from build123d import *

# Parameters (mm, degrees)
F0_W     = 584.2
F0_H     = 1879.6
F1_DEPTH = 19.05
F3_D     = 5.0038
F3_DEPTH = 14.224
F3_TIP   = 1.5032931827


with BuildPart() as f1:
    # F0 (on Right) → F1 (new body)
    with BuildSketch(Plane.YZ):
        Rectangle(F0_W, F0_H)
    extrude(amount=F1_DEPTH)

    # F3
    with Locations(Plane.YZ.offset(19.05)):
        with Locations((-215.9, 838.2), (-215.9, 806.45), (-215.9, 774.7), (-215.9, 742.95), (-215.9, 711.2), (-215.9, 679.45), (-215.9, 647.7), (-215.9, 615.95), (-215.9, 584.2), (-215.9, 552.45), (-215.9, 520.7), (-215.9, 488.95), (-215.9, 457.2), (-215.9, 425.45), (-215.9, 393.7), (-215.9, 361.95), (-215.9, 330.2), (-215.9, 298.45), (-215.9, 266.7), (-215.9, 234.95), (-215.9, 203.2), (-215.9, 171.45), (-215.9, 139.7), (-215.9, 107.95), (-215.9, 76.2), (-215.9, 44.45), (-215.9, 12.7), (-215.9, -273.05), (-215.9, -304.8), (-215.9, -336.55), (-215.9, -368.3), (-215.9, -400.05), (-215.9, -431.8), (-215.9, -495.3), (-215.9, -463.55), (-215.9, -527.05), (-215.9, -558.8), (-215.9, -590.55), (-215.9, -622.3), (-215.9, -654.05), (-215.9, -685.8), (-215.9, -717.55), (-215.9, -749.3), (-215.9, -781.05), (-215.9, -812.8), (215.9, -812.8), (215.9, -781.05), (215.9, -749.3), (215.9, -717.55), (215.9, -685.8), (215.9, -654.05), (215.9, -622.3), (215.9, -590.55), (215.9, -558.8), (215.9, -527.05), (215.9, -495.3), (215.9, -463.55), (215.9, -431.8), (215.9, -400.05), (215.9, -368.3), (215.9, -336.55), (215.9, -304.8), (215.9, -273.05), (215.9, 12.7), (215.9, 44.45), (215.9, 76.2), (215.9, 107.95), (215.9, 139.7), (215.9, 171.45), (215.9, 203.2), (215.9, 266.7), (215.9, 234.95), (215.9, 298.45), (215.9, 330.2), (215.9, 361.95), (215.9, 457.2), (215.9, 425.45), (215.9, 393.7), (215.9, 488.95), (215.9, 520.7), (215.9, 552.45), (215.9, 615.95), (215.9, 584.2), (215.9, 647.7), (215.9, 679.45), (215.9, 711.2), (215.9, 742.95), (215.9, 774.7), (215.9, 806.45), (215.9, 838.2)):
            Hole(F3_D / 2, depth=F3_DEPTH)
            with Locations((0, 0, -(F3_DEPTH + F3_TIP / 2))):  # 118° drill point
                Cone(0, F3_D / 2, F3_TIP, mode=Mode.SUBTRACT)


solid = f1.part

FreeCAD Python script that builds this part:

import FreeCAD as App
import Part
import Sketcher
from FreeCAD import Vector
Q = App.Units.Quantity

doc = App.newDocument("Part")
params = doc.addObject("Spreadsheet::Sheet", "Params")
for row, (alias, value) in enumerate([
    ("sketch1_width", "23 in"),
    ("sketch1_height", "74 in"),
    ("pad1_length", "0.75 in"),
    ("sketch2_diameter", "0.197 in"),
    ("hole_diameter", "0.197 in"),
    ("hole_depth", "0.56 in"),
], start=1):
    params.set(f"A{row}", alias)
    params.set(f"B{row}", "=" + value)
    params.setAlias(f"B{row}", alias)

body = doc.addObject("PartDesign::Body", "Body")

sketch1 = body.newObject("Sketcher::SketchObject", "Sketch")
sketch1.AttachmentSupport = (doc.getObject("YZ_Plane"), [""])
sketch1.MapMode = "FlatFace"
sketch1.addGeometry(Part.LineSegment(Vector(-292, 940, 0), Vector(-292, -940, 0)), False)
sketch1.addGeometry(Part.LineSegment(Vector(-292, -940, 0), Vector(292, -940, 0)), False)
sketch1.addGeometry(Part.LineSegment(Vector(292, -940, 0), Vector(292, 940, 0)), False)
sketch1.addGeometry(Part.LineSegment(Vector(292, 940, 0), Vector(-292, 940, 0)), False)
sketch1.addConstraint(Sketcher.Constraint("Coincident", 0, 2, 1, 1))
sketch1.addConstraint(Sketcher.Constraint("Coincident", 1, 2, 2, 1))
sketch1.addConstraint(Sketcher.Constraint("Coincident", 2, 2, 3, 1))
sketch1.addConstraint(Sketcher.Constraint("Coincident", 3, 2, 0, 1))
sketch1.addConstraint(Sketcher.Constraint("Vertical", 0))
sketch1.addConstraint(Sketcher.Constraint("Horizontal", 1))
sketch1.addConstraint(Sketcher.Constraint("Vertical", 2))
sketch1.addConstraint(Sketcher.Constraint("Horizontal", 3))
sketch1.addConstraint(Sketcher.Constraint("Symmetric", 0, 2, 2, 2, -1, 1))
sketch1.addConstraint(Sketcher.Constraint("DistanceX", 1, 1, 1, 2, Q("23 in")))
sketch1.addConstraint(Sketcher.Constraint("DistanceY", 0, 2, 0, 1, Q("74 in")))
sketch1.setExpression("Constraints[9]", "Params.sketch1_width")
sketch1.setExpression("Constraints[10]", "Params.sketch1_height")
pad1 = body.newObject("PartDesign::Pad", "Pad")
pad1.Profile = sketch1
pad1.setExpression("Length", "Params.pad1_length")

sketch2 = body.newObject("Sketcher::SketchObject", "Sketch001")
sketch2.AttachmentSupport = (doc.getObject("YZ_Plane"), [""])
sketch2.MapMode = "FlatFace"
sketch2.AttachmentOffset = App.Placement(Vector(0, 0, 0.75 * 25.4), App.Rotation())
sketch2.addGeometry(Part.Circle(Vector(-215.9, 838.2, 0), Vector(0, 0, 1), 2.5), False)
sketch2.addGeometry(Part.Circle(Vector(-215.9, 806.5, 0), Vector(0, 0, 1), 2.5), False)
sketch2.addGeometry(Part.Circle(Vector(-215.9, 774.7, 0), Vector(0, 0, 1), 2.5), False)
sketch2.addGeometry(Part.Circle(Vector(-215.9, 743, 0), Vector(0, 0, 1), 2.5), False)
sketch2.addGeometry(Part.Circle(Vector(-215.9, 711.2, 0), Vector(0, 0, 1), 2.5), False)
sketch2.addGeometry(Part.Circle(Vector(-215.9, 679.5, 0), Vector(0, 0, 1), 2.5), False)
sketch2.addGeometry(Part.Circle(Vector(-215.9, 647.7, 0), Vector(0, 0, 1), 2.5), False)
sketch2.addGeometry(Part.Circle(Vector(-215.9, 616, 0), Vector(0, 0, 1), 2.5), False)
sketch2.addGeometry(Part.Circle(Vector(-215.9, 584.2, 0), Vector(0, 0, 1), 2.5), False)
sketch2.addGeometry(Part.Circle(Vector(-215.9, 552.5, 0), Vector(0, 0, 1), 2.5), False)
sketch2.addGeometry(Part.Circle(Vector(-215.9, 520.7, 0), Vector(0, 0, 1), 2.5), False)
sketch2.addGeometry(Part.Circle(Vector(-215.9, 488.9, 0), Vector(0, 0, 1), 2.5), False)
sketch2.addGeometry(Part.Circle(Vector(-215.9, 457.2, 0), Vector(0, 0, 1), 2.5), False)
sketch2.addGeometry(Part.Circle(Vector(-215.9, 425.4, 0), Vector(0, 0, 1), 2.5), False)
sketch2.addGeometry(Part.Circle(Vector(-215.9, 393.7, 0), Vector(0, 0, 1), 2.5), False)
sketch2.addGeometry(Part.Circle(Vector(-215.9, 361.9, 0), Vector(0, 0, 1), 2.5), False)
sketch2.addGeometry(Part.Circle(Vector(-215.9, 330.2, 0), Vector(0, 0, 1), 2.5), False)
sketch2.addGeometry(Part.Circle(Vector(-215.9, 298.4, 0), Vector(0, 0, 1), 2.5), False)
sketch2.addGeometry(Part.Circle(Vector(-215.9, 266.7, 0), Vector(0, 0, 1), 2.5), False)
sketch2.addGeometry(Part.Circle(Vector(-215.9, 234.9, 0), Vector(0, 0, 1), 2.5), False)
sketch2.addGeometry(Part.Circle(Vector(-215.9, 203.2, 0), Vector(0, 0, 1), 2.5), False)
sketch2.addGeometry(Part.Circle(Vector(-215.9, 171.4, 0), Vector(0, 0, 1), 2.5), False)
sketch2.addGeometry(Part.Circle(Vector(-215.9, 139.7, 0), Vector(0, 0, 1), 2.5), False)
sketch2.addGeometry(Part.Circle(Vector(-215.9, 108, 0), Vector(0, 0, 1), 2.5), False)
sketch2.addGeometry(Part.Circle(Vector(-215.9, 76.2, 0), Vector(0, 0, 1), 2.5), False)
sketch2.addGeometry(Part.Circle(Vector(-215.9, 44.5, 0), Vector(0, 0, 1), 2.5), False)
sketch2.addGeometry(Part.Circle(Vector(-215.9, 12.7, 0), Vector(0, 0, 1), 2.5), False)
sketch2.addGeometry(Part.Circle(Vector(-215.9, -273.1, 0), Vector(0, 0, 1), 2.5), False)
sketch2.addGeometry(Part.Circle(Vector(-215.9, -304.8, 0), Vector(0, 0, 1), 2.5), False)
sketch2.addGeometry(Part.Circle(Vector(-215.9, -336.6, 0), Vector(0, 0, 1), 2.5), False)
sketch2.addGeometry(Part.Circle(Vector(-215.9, -368.3, 0), Vector(0, 0, 1), 2.5), False)
sketch2.addGeometry(Part.Circle(Vector(-215.9, -400.1, 0), Vector(0, 0, 1), 2.5), False)
sketch2.addGeometry(Part.Circle(Vector(-215.9, -431.8, 0), Vector(0, 0, 1), 2.5), False)
sketch2.addGeometry(Part.Circle(Vector(-215.9, -495.3, 0), Vector(0, 0, 1), 2.5), False)
sketch2.addGeometry(Part.Circle(Vector(-215.9, -463.6, 0), Vector(0, 0, 1), 2.5), False)
sketch2.addGeometry(Part.Circle(Vector(-215.9, -527, 0), Vector(0, 0, 1), 2.5), False)
sketch2.addGeometry(Part.Circle(Vector(-215.9, -558.8, 0), Vector(0, 0, 1), 2.5), False)
sketch2.addGeometry(Part.Circle(Vector(-215.9, -590.5, 0), Vector(0, 0, 1), 2.5), False)
sketch2.addGeometry(Part.Circle(Vector(-215.9, -622.3, 0), Vector(0, 0, 1), 2.5), False)
sketch2.addGeometry(Part.Circle(Vector(-215.9, -654, 0), Vector(0, 0, 1), 2.5), False)
sketch2.addGeometry(Part.Circle(Vector(-215.9, -685.8, 0), Vector(0, 0, 1), 2.5), False)
sketch2.addGeometry(Part.Circle(Vector(-215.9, -717.5, 0), Vector(0, 0, 1), 2.5), False)
sketch2.addGeometry(Part.Circle(Vector(-215.9, -749.3, 0), Vector(0, 0, 1), 2.5), False)
sketch2.addGeometry(Part.Circle(Vector(-215.9, -781, 0), Vector(0, 0, 1), 2.5), False)
sketch2.addGeometry(Part.Circle(Vector(-215.9, -812.8, 0), Vector(0, 0, 1), 2.5), False)
sketch2.addGeometry(Part.Circle(Vector(215.9, -812.8, 0), Vector(0, 0, 1), 2.5), False)
sketch2.addGeometry(Part.Circle(Vector(215.9, -781, 0), Vector(0, 0, 1), 2.5), False)
sketch2.addGeometry(Part.Circle(Vector(215.9, -749.3, 0), Vector(0, 0, 1), 2.5), False)
sketch2.addGeometry(Part.Circle(Vector(215.9, -717.5, 0), Vector(0, 0, 1), 2.5), False)
sketch2.addGeometry(Part.Circle(Vector(215.9, -685.8, 0), Vector(0, 0, 1), 2.5), False)
sketch2.addGeometry(Part.Circle(Vector(215.9, -654, 0), Vector(0, 0, 1), 2.5), False)
sketch2.addGeometry(Part.Circle(Vector(215.9, -622.3, 0), Vector(0, 0, 1), 2.5), False)
sketch2.addGeometry(Part.Circle(Vector(215.9, -590.5, 0), Vector(0, 0, 1), 2.5), False)
sketch2.addGeometry(Part.Circle(Vector(215.9, -558.8, 0), Vector(0, 0, 1), 2.5), False)
sketch2.addGeometry(Part.Circle(Vector(215.9, -527, 0), Vector(0, 0, 1), 2.5), False)
sketch2.addGeometry(Part.Circle(Vector(215.9, -495.3, 0), Vector(0, 0, 1), 2.5), False)
sketch2.addGeometry(Part.Circle(Vector(215.9, -463.6, 0), Vector(0, 0, 1), 2.5), False)
sketch2.addGeometry(Part.Circle(Vector(215.9, -431.8, 0), Vector(0, 0, 1), 2.5), False)
sketch2.addGeometry(Part.Circle(Vector(215.9, -400.1, 0), Vector(0, 0, 1), 2.5), False)
sketch2.addGeometry(Part.Circle(Vector(215.9, -368.3, 0), Vector(0, 0, 1), 2.5), False)
sketch2.addGeometry(Part.Circle(Vector(215.9, -336.6, 0), Vector(0, 0, 1), 2.5), False)
sketch2.addGeometry(Part.Circle(Vector(215.9, -304.8, 0), Vector(0, 0, 1), 2.5), False)
sketch2.addGeometry(Part.Circle(Vector(215.9, -273.1, 0), Vector(0, 0, 1), 2.5), False)
sketch2.addGeometry(Part.Circle(Vector(215.9, 12.7, 0), Vector(0, 0, 1), 2.5), False)
sketch2.addGeometry(Part.Circle(Vector(215.9, 44.5, 0), Vector(0, 0, 1), 2.5), False)
sketch2.addGeometry(Part.Circle(Vector(215.9, 76.2, 0), Vector(0, 0, 1), 2.5), False)
sketch2.addGeometry(Part.Circle(Vector(215.9, 108, 0), Vector(0, 0, 1), 2.5), False)
sketch2.addGeometry(Part.Circle(Vector(215.9, 139.7, 0), Vector(0, 0, 1), 2.5), False)
sketch2.addGeometry(Part.Circle(Vector(215.9, 171.4, 0), Vector(0, 0, 1), 2.5), False)
sketch2.addGeometry(Part.Circle(Vector(215.9, 203.2, 0), Vector(0, 0, 1), 2.5), False)
sketch2.addGeometry(Part.Circle(Vector(215.9, 266.7, 0), Vector(0, 0, 1), 2.5), False)
sketch2.addGeometry(Part.Circle(Vector(215.9, 234.9, 0), Vector(0, 0, 1), 2.5), False)
sketch2.addGeometry(Part.Circle(Vector(215.9, 298.4, 0), Vector(0, 0, 1), 2.5), False)
sketch2.addGeometry(Part.Circle(Vector(215.9, 330.2, 0), Vector(0, 0, 1), 2.5), False)
sketch2.addGeometry(Part.Circle(Vector(215.9, 361.9, 0), Vector(0, 0, 1), 2.5), False)
sketch2.addGeometry(Part.Circle(Vector(215.9, 457.2, 0), Vector(0, 0, 1), 2.5), False)
sketch2.addGeometry(Part.Circle(Vector(215.9, 425.4, 0), Vector(0, 0, 1), 2.5), False)
sketch2.addGeometry(Part.Circle(Vector(215.9, 393.7, 0), Vector(0, 0, 1), 2.5), False)
sketch2.addGeometry(Part.Circle(Vector(215.9, 488.9, 0), Vector(0, 0, 1), 2.5), False)
sketch2.addGeometry(Part.Circle(Vector(215.9, 520.7, 0), Vector(0, 0, 1), 2.5), False)
sketch2.addGeometry(Part.Circle(Vector(215.9, 552.5, 0), Vector(0, 0, 1), 2.5), False)
sketch2.addGeometry(Part.Circle(Vector(215.9, 616, 0), Vector(0, 0, 1), 2.5), False)
sketch2.addGeometry(Part.Circle(Vector(215.9, 584.2, 0), Vector(0, 0, 1), 2.5), False)
sketch2.addGeometry(Part.Circle(Vector(215.9, 647.7, 0), Vector(0, 0, 1), 2.5), False)
sketch2.addGeometry(Part.Circle(Vector(215.9, 679.5, 0), Vector(0, 0, 1), 2.5), False)
sketch2.addGeometry(Part.Circle(Vector(215.9, 711.2, 0), Vector(0, 0, 1), 2.5), False)
sketch2.addGeometry(Part.Circle(Vector(215.9, 743, 0), Vector(0, 0, 1), 2.5), False)
sketch2.addGeometry(Part.Circle(Vector(215.9, 774.7, 0), Vector(0, 0, 1), 2.5), False)
sketch2.addGeometry(Part.Circle(Vector(215.9, 806.5, 0), Vector(0, 0, 1), 2.5), False)
sketch2.addGeometry(Part.Circle(Vector(215.9, 838.2, 0), Vector(0, 0, 1), 2.5), False)
sketch2.addConstraint(Sketcher.Constraint("Equal", 0, 1))
sketch2.addConstraint(Sketcher.Constraint("Equal", 1, 2))
sketch2.addConstraint(Sketcher.Constraint("Equal", 2, 3))
sketch2.addConstraint(Sketcher.Constraint("Equal", 3, 4))
sketch2.addConstraint(Sketcher.Constraint("Equal", 4, 5))
sketch2.addConstraint(Sketcher.Constraint("Equal", 5, 6))
sketch2.addConstraint(Sketcher.Constraint("Equal", 6, 7))
sketch2.addConstraint(Sketcher.Constraint("Equal", 7, 8))
sketch2.addConstraint(Sketcher.Constraint("Equal", 8, 9))
sketch2.addConstraint(Sketcher.Constraint("Equal", 9, 10))
sketch2.addConstraint(Sketcher.Constraint("Equal", 10, 11))
sketch2.addConstraint(Sketcher.Constraint("Equal", 11, 12))
sketch2.addConstraint(Sketcher.Constraint("Equal", 12, 13))
sketch2.addConstraint(Sketcher.Constraint("Equal", 13, 14))
sketch2.addConstraint(Sketcher.Constraint("Equal", 14, 15))
sketch2.addConstraint(Sketcher.Constraint("Equal", 15, 16))
sketch2.addConstraint(Sketcher.Constraint("Equal", 16, 17))
sketch2.addConstraint(Sketcher.Constraint("Equal", 17, 18))
sketch2.addConstraint(Sketcher.Constraint("Equal", 18, 19))
sketch2.addConstraint(Sketcher.Constraint("Equal", 19, 20))
sketch2.addConstraint(Sketcher.Constraint("Equal", 20, 21))
sketch2.addConstraint(Sketcher.Constraint("Equal", 21, 22))
sketch2.addConstraint(Sketcher.Constraint("Equal", 22, 23))
sketch2.addConstraint(Sketcher.Constraint("Equal", 23, 24))
sketch2.addConstraint(Sketcher.Constraint("Equal", 24, 25))
sketch2.addConstraint(Sketcher.Constraint("Equal", 25, 26))
sketch2.addConstraint(Sketcher.Constraint("Equal", 26, 27))
sketch2.addConstraint(Sketcher.Constraint("Equal", 27, 28))
sketch2.addConstraint(Sketcher.Constraint("Equal", 28, 29))
sketch2.addConstraint(Sketcher.Constraint("Equal", 29, 30))
sketch2.addConstraint(Sketcher.Constraint("Equal", 30, 31))
sketch2.addConstraint(Sketcher.Constraint("Equal", 31, 32))
sketch2.addConstraint(Sketcher.Constraint("Equal", 32, 33))
sketch2.addConstraint(Sketcher.Constraint("Equal", 33, 34))
sketch2.addConstraint(Sketcher.Constraint("Equal", 34, 35))
sketch2.addConstraint(Sketcher.Constraint("Equal", 35, 36))
sketch2.addConstraint(Sketcher.Constraint("Equal", 36, 37))
sketch2.addConstraint(Sketcher.Constraint("Equal", 37, 38))
sketch2.addConstraint(Sketcher.Constraint("Equal", 38, 39))
sketch2.addConstraint(Sketcher.Constraint("Equal", 39, 40))
sketch2.addConstraint(Sketcher.Constraint("Equal", 40, 41))
sketch2.addConstraint(Sketcher.Constraint("Equal", 41, 42))
sketch2.addConstraint(Sketcher.Constraint("Equal", 42, 43))
sketch2.addConstraint(Sketcher.Constraint("Equal", 43, 44))
sketch2.addConstraint(Sketcher.Constraint("Equal", 44, 45))
sketch2.addConstraint(Sketcher.Constraint("Equal", 45, 46))
sketch2.addConstraint(Sketcher.Constraint("Equal", 46, 47))
sketch2.addConstraint(Sketcher.Constraint("Equal", 47, 48))
sketch2.addConstraint(Sketcher.Constraint("Equal", 48, 49))
sketch2.addConstraint(Sketcher.Constraint("Equal", 49, 50))
sketch2.addConstraint(Sketcher.Constraint("Equal", 50, 51))
sketch2.addConstraint(Sketcher.Constraint("Equal", 51, 52))
sketch2.addConstraint(Sketcher.Constraint("Equal", 52, 53))
sketch2.addConstraint(Sketcher.Constraint("Equal", 53, 54))
sketch2.addConstraint(Sketcher.Constraint("Equal", 54, 55))
sketch2.addConstraint(Sketcher.Constraint("Equal", 55, 56))
sketch2.addConstraint(Sketcher.Constraint("Equal", 56, 57))
sketch2.addConstraint(Sketcher.Constraint("Equal", 57, 58))
sketch2.addConstraint(Sketcher.Constraint("Equal", 58, 59))
sketch2.addConstraint(Sketcher.Constraint("Equal", 59, 60))
sketch2.addConstraint(Sketcher.Constraint("Equal", 60, 61))
sketch2.addConstraint(Sketcher.Constraint("Equal", 61, 62))
sketch2.addConstraint(Sketcher.Constraint("Equal", 62, 63))
sketch2.addConstraint(Sketcher.Constraint("Equal", 63, 64))
sketch2.addConstraint(Sketcher.Constraint("Equal", 64, 65))
sketch2.addConstraint(Sketcher.Constraint("Equal", 65, 66))
sketch2.addConstraint(Sketcher.Constraint("Equal", 66, 67))
sketch2.addConstraint(Sketcher.Constraint("Equal", 67, 68))
sketch2.addConstraint(Sketcher.Constraint("Equal", 68, 69))
sketch2.addConstraint(Sketcher.Constraint("Equal", 69, 70))
sketch2.addConstraint(Sketcher.Constraint("Equal", 70, 71))
sketch2.addConstraint(Sketcher.Constraint("Equal", 71, 72))
sketch2.addConstraint(Sketcher.Constraint("Equal", 72, 73))
sketch2.addConstraint(Sketcher.Constraint("Equal", 73, 74))
sketch2.addConstraint(Sketcher.Constraint("Equal", 74, 75))
sketch2.addConstraint(Sketcher.Constraint("Equal", 75, 76))
sketch2.addConstraint(Sketcher.Constraint("Equal", 76, 77))
sketch2.addConstraint(Sketcher.Constraint("Equal", 77, 78))
sketch2.addConstraint(Sketcher.Constraint("Equal", 78, 79))
sketch2.addConstraint(Sketcher.Constraint("Equal", 79, 80))
sketch2.addConstraint(Sketcher.Constraint("Equal", 80, 81))
sketch2.addConstraint(Sketcher.Constraint("Equal", 81, 82))
sketch2.addConstraint(Sketcher.Constraint("Equal", 82, 83))
sketch2.addConstraint(Sketcher.Constraint("Equal", 83, 84))
sketch2.addConstraint(Sketcher.Constraint("Equal", 84, 85))
sketch2.addConstraint(Sketcher.Constraint("Equal", 85, 86))
sketch2.addConstraint(Sketcher.Constraint("Equal", 86, 87))
sketch2.addConstraint(Sketcher.Constraint("Equal", 87, 88))
sketch2.addConstraint(Sketcher.Constraint("Equal", 88, 89))
sketch2.addConstraint(Sketcher.Constraint("Symmetric", 44, 3, 45, 3, -2))
sketch2.addConstraint(Sketcher.Constraint("Symmetric", 43, 3, 46, 3, -2))
sketch2.addConstraint(Sketcher.Constraint("Symmetric", 42, 3, 47, 3, -2))
sketch2.addConstraint(Sketcher.Constraint("Symmetric", 41, 3, 48, 3, -2))
sketch2.addConstraint(Sketcher.Constraint("Symmetric", 40, 3, 49, 3, -2))
sketch2.addConstraint(Sketcher.Constraint("Symmetric", 39, 3, 50, 3, -2))
sketch2.addConstraint(Sketcher.Constraint("Symmetric", 38, 3, 51, 3, -2))
sketch2.addConstraint(Sketcher.Constraint("Symmetric", 37, 3, 52, 3, -2))
sketch2.addConstraint(Sketcher.Constraint("Symmetric", 36, 3, 53, 3, -2))
sketch2.addConstraint(Sketcher.Constraint("Symmetric", 35, 3, 54, 3, -2))
sketch2.addConstraint(Sketcher.Constraint("Symmetric", 33, 3, 55, 3, -2))
sketch2.addConstraint(Sketcher.Constraint("Symmetric", 34, 3, 56, 3, -2))
sketch2.addConstraint(Sketcher.Constraint("Symmetric", 32, 3, 57, 3, -2))
sketch2.addConstraint(Sketcher.Constraint("Symmetric", 31, 3, 58, 3, -2))
sketch2.addConstraint(Sketcher.Constraint("Symmetric", 30, 3, 59, 3, -2))
sketch2.addConstraint(Sketcher.Constraint("Symmetric", 29, 3, 60, 3, -2))
sketch2.addConstraint(Sketcher.Constraint("Symmetric", 28, 3, 61, 3, -2))
sketch2.addConstraint(Sketcher.Constraint("Symmetric", 27, 3, 62, 3, -2))
sketch2.addConstraint(Sketcher.Constraint("Symmetric", 26, 3, 63, 3, -2))
sketch2.addConstraint(Sketcher.Constraint("Symmetric", 25, 3, 64, 3, -2))
sketch2.addConstraint(Sketcher.Constraint("Symmetric", 24, 3, 65, 3, -2))
sketch2.addConstraint(Sketcher.Constraint("Symmetric", 23, 3, 66, 3, -2))
sketch2.addConstraint(Sketcher.Constraint("Symmetric", 22, 3, 67, 3, -2))
sketch2.addConstraint(Sketcher.Constraint("Symmetric", 21, 3, 68, 3, -2))
sketch2.addConstraint(Sketcher.Constraint("Symmetric", 20, 3, 69, 3, -2))
sketch2.addConstraint(Sketcher.Constraint("Symmetric", 18, 3, 70, 3, -2))
sketch2.addConstraint(Sketcher.Constraint("Symmetric", 19, 3, 71, 3, -2))
sketch2.addConstraint(Sketcher.Constraint("Symmetric", 17, 3, 72, 3, -2))
sketch2.addConstraint(Sketcher.Constraint("Symmetric", 16, 3, 73, 3, -2))
sketch2.addConstraint(Sketcher.Constraint("Symmetric", 15, 3, 74, 3, -2))
sketch2.addConstraint(Sketcher.Constraint("Symmetric", 12, 3, 75, 3, -2))
sketch2.addConstraint(Sketcher.Constraint("Symmetric", 13, 3, 76, 3, -2))
sketch2.addConstraint(Sketcher.Constraint("Symmetric", 14, 3, 77, 3, -2))
sketch2.addConstraint(Sketcher.Constraint("Symmetric", 11, 3, 78, 3, -2))
sketch2.addConstraint(Sketcher.Constraint("Symmetric", 10, 3, 79, 3, -2))
sketch2.addConstraint(Sketcher.Constraint("Symmetric", 9, 3, 80, 3, -2))
sketch2.addConstraint(Sketcher.Constraint("Symmetric", 7, 3, 81, 3, -2))
sketch2.addConstraint(Sketcher.Constraint("Symmetric", 8, 3, 82, 3, -2))
sketch2.addConstraint(Sketcher.Constraint("Symmetric", 6, 3, 83, 3, -2))
sketch2.addConstraint(Sketcher.Constraint("Symmetric", 5, 3, 84, 3, -2))
sketch2.addConstraint(Sketcher.Constraint("Symmetric", 4, 3, 85, 3, -2))
sketch2.addConstraint(Sketcher.Constraint("Symmetric", 3, 3, 86, 3, -2))
sketch2.addConstraint(Sketcher.Constraint("Symmetric", 2, 3, 87, 3, -2))
sketch2.addConstraint(Sketcher.Constraint("Symmetric", 1, 3, 88, 3, -2))
sketch2.addConstraint(Sketcher.Constraint("Symmetric", 0, 3, 89, 3, -2))
sketch2.addConstraint(Sketcher.Constraint("Vertical", 0, 3, 1, 3))
sketch2.addConstraint(Sketcher.Constraint("Vertical", 1, 3, 2, 3))
sketch2.addConstraint(Sketcher.Constraint("Vertical", 2, 3, 3, 3))
sketch2.addConstraint(Sketcher.Constraint("Vertical", 3, 3, 4, 3))
sketch2.addConstraint(Sketcher.Constraint("Vertical", 4, 3, 5, 3))
sketch2.addConstraint(Sketcher.Constraint("Vertical", 5, 3, 6, 3))
sketch2.addConstraint(Sketcher.Constraint("Vertical", 6, 3, 7, 3))
sketch2.addConstraint(Sketcher.Constraint("Vertical", 7, 3, 8, 3))
sketch2.addConstraint(Sketcher.Constraint("Vertical", 8, 3, 9, 3))
sketch2.addConstraint(Sketcher.Constraint("Vertical", 9, 3, 10, 3))
sketch2.addConstraint(Sketcher.Constraint("Vertical", 10, 3, 11, 3))
sketch2.addConstraint(Sketcher.Constraint("Vertical", 11, 3, 12, 3))
sketch2.addConstraint(Sketcher.Constraint("Vertical", 12, 3, 13, 3))
sketch2.addConstraint(Sketcher.Constraint("Vertical", 13, 3, 14, 3))
sketch2.addConstraint(Sketcher.Constraint("Vertical", 14, 3, 15, 3))
sketch2.addConstraint(Sketcher.Constraint("Vertical", 15, 3, 16, 3))
sketch2.addConstraint(Sketcher.Constraint("Vertical", 16, 3, 17, 3))
sketch2.addConstraint(Sketcher.Constraint("Vertical", 17, 3, 18, 3))
sketch2.addConstraint(Sketcher.Constraint("Vertical", 18, 3, 19, 3))
sketch2.addConstraint(Sketcher.Constraint("Vertical", 19, 3, 20, 3))
sketch2.addConstraint(Sketcher.Constraint("Vertical", 20, 3, 21, 3))
sketch2.addConstraint(Sketcher.Constraint("Vertical", 21, 3, 22, 3))
sketch2.addConstraint(Sketcher.Constraint("Vertical", 22, 3, 23, 3))
sketch2.addConstraint(Sketcher.Constraint("Vertical", 23, 3, 24, 3))
sketch2.addConstraint(Sketcher.Constraint("Vertical", 24, 3, 25, 3))
sketch2.addConstraint(Sketcher.Constraint("Vertical", 25, 3, 26, 3))
sketch2.addConstraint(Sketcher.Constraint("Vertical", 26, 3, 27, 3))
sketch2.addConstraint(Sketcher.Constraint("Vertical", 27, 3, 28, 3))
sketch2.addConstraint(Sketcher.Constraint("Vertical", 28, 3, 29, 3))
sketch2.addConstraint(Sketcher.Constraint("Vertical", 29, 3, 30, 3))
sketch2.addConstraint(Sketcher.Constraint("Vertical", 30, 3, 31, 3))
sketch2.addConstraint(Sketcher.Constraint("Vertical", 31, 3, 32, 3))
sketch2.addConstraint(Sketcher.Constraint("Vertical", 32, 3, 33, 3))
sketch2.addConstraint(Sketcher.Constraint("Vertical", 33, 3, 34, 3))
sketch2.addConstraint(Sketcher.Constraint("Vertical", 34, 3, 35, 3))
sketch2.addConstraint(Sketcher.Constraint("Vertical", 35, 3, 36, 3))
sketch2.addConstraint(Sketcher.Constraint("Vertical", 36, 3, 37, 3))
sketch2.addConstraint(Sketcher.Constraint("Vertical", 37, 3, 38, 3))
sketch2.addConstraint(Sketcher.Constraint("Vertical", 38, 3, 39, 3))
sketch2.addConstraint(Sketcher.Constraint("Vertical", 39, 3, 40, 3))
sketch2.addConstraint(Sketcher.Constraint("Vertical", 40, 3, 41, 3))
sketch2.addConstraint(Sketcher.Constraint("Vertical", 41, 3, 42, 3))
sketch2.addConstraint(Sketcher.Constraint("Vertical", 42, 3, 43, 3))
sketch2.addConstraint(Sketcher.Constraint("Vertical", 43, 3, 44, 3))
sketch2.addConstraint(Sketcher.Constraint("Diameter", 0, Q("0.197 in")))
sketch2.addConstraint(Sketcher.Constraint("DistanceY", -1, 1, 0, 3, Q("33 in")))
sketch2.addConstraint(Sketcher.Constraint("DistanceY", -1, 1, 4, 3, Q("28 in")))
sketch2.addConstraint(Sketcher.Constraint("DistanceY", -1, 1, 8, 3, Q("23 in")))
sketch2.addConstraint(Sketcher.Constraint("DistanceY", -1, 1, 12, 3, Q("18 in")))
sketch2.addConstraint(Sketcher.Constraint("DistanceY", -1, 1, 16, 3, Q("13 in")))
sketch2.addConstraint(Sketcher.Constraint("DistanceY", -1, 1, 20, 3, Q("8 in")))
sketch2.addConstraint(Sketcher.Constraint("DistanceY", -1, 1, 24, 3, Q("3 in")))
sketch2.addConstraint(Sketcher.Constraint("DistanceY", 28, 3, -1, 1, Q("12 in")))
sketch2.addConstraint(Sketcher.Constraint("DistanceY", 32, 3, -1, 1, Q("17 in")))
sketch2.addConstraint(Sketcher.Constraint("DistanceY", 36, 3, -1, 1, Q("22 in")))
sketch2.addConstraint(Sketcher.Constraint("DistanceY", 40, 3, -1, 1, Q("27 in")))
sketch2.addConstraint(Sketcher.Constraint("DistanceY", 44, 3, -1, 1, Q("32 in")))
sketch2.addConstraint(Sketcher.Constraint("DistanceX", 0, 3, -1, 1, Q("8.5 in")))
sketch2.addConstraint(Sketcher.Constraint("DistanceY", -1, 1, 2, 3, Q("30.5 in")))
sketch2.addConstraint(Sketcher.Constraint("DistanceY", -1, 1, 6, 3, Q("25.5 in")))
sketch2.addConstraint(Sketcher.Constraint("DistanceY", -1, 1, 10, 3, Q("20.5 in")))
sketch2.addConstraint(Sketcher.Constraint("DistanceY", -1, 1, 14, 3, Q("15.5 in")))
sketch2.addConstraint(Sketcher.Constraint("DistanceY", -1, 1, 18, 3, Q("10.5 in")))
sketch2.addConstraint(Sketcher.Constraint("DistanceY", -1, 1, 22, 3, Q("5.5 in")))
sketch2.addConstraint(Sketcher.Constraint("DistanceY", -1, 1, 26, 3, Q("0.5 in")))
sketch2.addConstraint(Sketcher.Constraint("DistanceY", 30, 3, -1, 1, Q("14.5 in")))
sketch2.addConstraint(Sketcher.Constraint("DistanceY", 33, 3, -1, 1, Q("19.5 in")))
sketch2.addConstraint(Sketcher.Constraint("DistanceY", 38, 3, -1, 1, Q("24.5 in")))
sketch2.addConstraint(Sketcher.Constraint("DistanceY", 42, 3, -1, 1, Q("29.5 in")))
sketch2.addConstraint(Sketcher.Constraint("DistanceY", -1, 1, 1, 3, Q("31.75 in")))
sketch2.addConstraint(Sketcher.Constraint("DistanceY", -1, 1, 3, 3, Q("29.25 in")))
sketch2.addConstraint(Sketcher.Constraint("DistanceY", -1, 1, 5, 3, Q("26.75 in")))
sketch2.addConstraint(Sketcher.Constraint("DistanceY", -1, 1, 7, 3, Q("24.25 in")))
sketch2.addConstraint(Sketcher.Constraint("DistanceY", -1, 1, 9, 3, Q("21.75 in")))
sketch2.addConstraint(Sketcher.Constraint("DistanceY", -1, 1, 11, 3, Q("19.25 in")))
sketch2.addConstraint(Sketcher.Constraint("DistanceY", -1, 1, 13, 3, Q("16.75 in")))
sketch2.addConstraint(Sketcher.Constraint("DistanceY", -1, 1, 15, 3, Q("14.25 in")))
sketch2.addConstraint(Sketcher.Constraint("DistanceY", -1, 1, 17, 3, Q("11.75 in")))
sketch2.addConstraint(Sketcher.Constraint("DistanceY", -1, 1, 19, 3, Q("9.25 in")))
sketch2.addConstraint(Sketcher.Constraint("DistanceY", -1, 1, 21, 3, Q("6.75 in")))
sketch2.addConstraint(Sketcher.Constraint("DistanceY", -1, 1, 23, 3, Q("4.25 in")))
sketch2.addConstraint(Sketcher.Constraint("DistanceY", -1, 1, 25, 3, Q("1.75 in")))
sketch2.addConstraint(Sketcher.Constraint("DistanceY", 27, 3, -1, 1, Q("10.75 in")))
sketch2.addConstraint(Sketcher.Constraint("DistanceY", 29, 3, -1, 1, Q("13.25 in")))
sketch2.addConstraint(Sketcher.Constraint("DistanceY", 31, 3, -1, 1, Q("15.75 in")))
sketch2.addConstraint(Sketcher.Constraint("DistanceY", 34, 3, -1, 1, Q("18.25 in")))
sketch2.addConstraint(Sketcher.Constraint("DistanceY", 35, 3, -1, 1, Q("20.75 in")))
sketch2.addConstraint(Sketcher.Constraint("DistanceY", 37, 3, -1, 1, Q("23.25 in")))
sketch2.addConstraint(Sketcher.Constraint("DistanceY", 39, 3, -1, 1, Q("25.75 in")))
sketch2.addConstraint(Sketcher.Constraint("DistanceY", 41, 3, -1, 1, Q("28.25 in")))
sketch2.addConstraint(Sketcher.Constraint("DistanceY", 43, 3, -1, 1, Q("30.75 in")))
sketch2.setExpression("Constraints[178]", "Params.sketch2_diameter")
doc.recompute()
hole = body.newObject("PartDesign::Hole", "Hole")
hole.Profile = sketch2
hole.ThreadType = "None"
hole.setExpression("Diameter", "Params.hole_diameter")
hole.DepthType = "Dimension"
hole.setExpression("Depth", "Params.hole_depth")
hole.DrillPoint = "Angled"
hole.DrillPointAngle = 118

doc.recompute()
